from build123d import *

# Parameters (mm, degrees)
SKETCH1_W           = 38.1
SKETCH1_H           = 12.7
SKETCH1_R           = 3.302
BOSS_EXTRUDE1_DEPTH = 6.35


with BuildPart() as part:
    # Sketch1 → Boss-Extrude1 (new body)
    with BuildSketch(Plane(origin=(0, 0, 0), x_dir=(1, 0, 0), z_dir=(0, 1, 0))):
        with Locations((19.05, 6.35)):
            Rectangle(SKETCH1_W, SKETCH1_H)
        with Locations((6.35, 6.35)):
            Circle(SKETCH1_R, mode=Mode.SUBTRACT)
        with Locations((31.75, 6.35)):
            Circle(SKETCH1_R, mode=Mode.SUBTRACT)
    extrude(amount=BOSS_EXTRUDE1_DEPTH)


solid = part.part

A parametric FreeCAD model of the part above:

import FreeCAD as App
import Part
import Sketcher

V = App.Vector
Q = App.Units.Quantity

doc = App.newDocument("Part")
body = doc.addObject("PartDesign::Body", "Body")

sketch1 = body.newObject("Sketcher::SketchObject", "Sketch")
sketch1.AttachmentSupport = (doc.getObject("XZ_Plane"), [""])
sketch1.MapMode = "FlatFace"
sketch1.addGeometry(Part.LineSegment(V(0, -12.7, 0), V(0, 0, 0)), False)
sketch1.addGeometry(Part.LineSegment(V(0, 0, 0), V(38.1, 0, 0)), False)
sketch1.addGeometry(Part.LineSegment(V(38.1, 0, 0), V(38.1, -12.7, 0)), False)
sketch1.addGeometry(Part.LineSegment(V(38.1, -12.7, 0), V(0, -12.7, 0)), False)
sketch1.addGeometry(Part.Circle(V(6.35, -6.35, 0), V(0, 0, 1), 3.302), False)
sketch1.addGeometry(Part.Circle(V(31.75, -6.35, 0), V(0, 0, 1), 3.302), False)
sketch1.addConstraint(Sketcher.Constraint("Coincident", 0, 2, 1, 1))
sketch1.addConstraint(Sketcher.Constraint("Coincident", 1, 2, 2, 1))
sketch1.addConstraint(Sketcher.Constraint("Coincident", 2, 2, 3, 1))
sketch1.addConstraint(Sketcher.Constraint("Coincident", 3, 2, 0, 1))
sketch1.addConstraint(Sketcher.Constraint("Vertical", 0))
sketch1.addConstraint(Sketcher.Constraint("Horizontal", 1))
sketch1.addConstraint(Sketcher.Constraint("Vertical", 2))
sketch1.addConstraint(Sketcher.Constraint("Horizontal", 3))
sketch1.addConstraint(Sketcher.Constraint("Coincident", 0, 2, -1, 1))
sketch1.addConstraint(Sketcher.Constraint("Equal", 4, 5))
sketch1.addConstraint(Sketcher.Constraint("Horizontal", 4, 3, 5, 3))
sketch1.addConstraint(Sketcher.Constraint("Diameter", 4, Q("0.26 in")))
sketch1.addConstraint(Sketcher.Constraint("DistanceX", 1, 1, 1, 2, Q("1.5 in")))
sketch1.addConstraint(Sketcher.Constraint("DistanceY", 0, 1, 0, 2, Q("0.5 in")))
sketch1.addConstraint(Sketcher.Constraint("DistanceX", 4, 3, 5, 3, Q("1 in")))
sketch1.addConstraint(Sketcher.Constraint("DistanceX", -1, 1, 4, 3, Q("0.25 in")))
sketch1.addConstraint(Sketcher.Constraint("DistanceY", 4, 3, -1, 1, Q("0.25 in")))
pad1 = body.newObject("PartDesign::Pad", "Pad")
pad1.Profile = sketch1
pad1.Length = Q("0.25 in")
pad1.Reversed = True

doc.recompute()
